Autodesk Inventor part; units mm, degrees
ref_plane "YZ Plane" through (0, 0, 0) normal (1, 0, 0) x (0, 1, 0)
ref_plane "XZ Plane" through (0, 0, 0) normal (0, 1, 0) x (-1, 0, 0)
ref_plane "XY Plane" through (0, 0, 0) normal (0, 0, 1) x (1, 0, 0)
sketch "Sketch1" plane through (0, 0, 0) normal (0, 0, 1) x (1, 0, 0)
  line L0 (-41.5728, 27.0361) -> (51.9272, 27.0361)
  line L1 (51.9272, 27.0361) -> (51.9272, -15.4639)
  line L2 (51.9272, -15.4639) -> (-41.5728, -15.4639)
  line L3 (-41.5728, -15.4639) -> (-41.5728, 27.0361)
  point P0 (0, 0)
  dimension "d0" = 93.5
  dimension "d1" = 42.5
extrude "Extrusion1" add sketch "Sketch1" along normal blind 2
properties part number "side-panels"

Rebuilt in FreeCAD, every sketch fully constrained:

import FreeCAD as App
import Part
import Sketcher
Q = App.Units.Quantity

doc = App.newDocument("Part")
body = doc.addObject("PartDesign::Body", "Body")

sketch1 = doc.addObject("Sketcher::SketchObject", "Sketch")
body.addObject(sketch1)
sketch1.AttachmentSupport = (doc.XY_Plane, [""])
sketch1.MapMode = "FlatFace"
sketch1.addGeometry(Part.LineSegment(App.Vector(52, 27, 0), App.Vector(-42, 27, 0)), False)
sketch1.addGeometry(Part.LineSegment(App.Vector(-42, 27, 0), App.Vector(-42, -15, 0)), False)
sketch1.addGeometry(Part.LineSegment(App.Vector(-42, -15, 0), App.Vector(52, -15, 0)), False)
sketch1.addGeometry(Part.LineSegment(App.Vector(52, -15, 0), App.Vector(52, 27, 0)), False)
sketch1.addConstraint(Sketcher.Constraint("Coincident", 0, 2, 1, 1))
sketch1.addConstraint(Sketcher.Constraint("Coincident", 1, 2, 2, 1))
sketch1.addConstraint(Sketcher.Constraint("Coincident", 2, 2, 3, 1))
sketch1.addConstraint(Sketcher.Constraint("Coincident", 3, 2, 0, 1))
sketch1.addConstraint(Sketcher.Constraint("Horizontal", 0))
sketch1.addConstraint(Sketcher.Constraint("Vertical", 1))
sketch1.addConstraint(Sketcher.Constraint("Horizontal", 2))
sketch1.addConstraint(Sketcher.Constraint("Vertical", 3))
sketch1.addConstraint(Sketcher.Constraint("DistanceX", 0, 2, 0, 1, Q("93.5 mm")))
sketch1.addConstraint(Sketcher.Constraint("DistanceY", 1, 2, 1, 1, Q("42.5 mm")))
sketch1.addConstraint(Sketcher.Constraint("DistanceY", -1, 1, 0, 2, Q("27.036 mm")))
sketch1.addConstraint(Sketcher.Constraint("DistanceX", 0, 2, -1, 1, Q("41.5728 mm")))
pad1 = doc.addObject("PartDesign::Pad", "Pad")
body.addObject(pad1)
pad1.Profile = sketch1
pad1.Length = 2

doc.recompute()
